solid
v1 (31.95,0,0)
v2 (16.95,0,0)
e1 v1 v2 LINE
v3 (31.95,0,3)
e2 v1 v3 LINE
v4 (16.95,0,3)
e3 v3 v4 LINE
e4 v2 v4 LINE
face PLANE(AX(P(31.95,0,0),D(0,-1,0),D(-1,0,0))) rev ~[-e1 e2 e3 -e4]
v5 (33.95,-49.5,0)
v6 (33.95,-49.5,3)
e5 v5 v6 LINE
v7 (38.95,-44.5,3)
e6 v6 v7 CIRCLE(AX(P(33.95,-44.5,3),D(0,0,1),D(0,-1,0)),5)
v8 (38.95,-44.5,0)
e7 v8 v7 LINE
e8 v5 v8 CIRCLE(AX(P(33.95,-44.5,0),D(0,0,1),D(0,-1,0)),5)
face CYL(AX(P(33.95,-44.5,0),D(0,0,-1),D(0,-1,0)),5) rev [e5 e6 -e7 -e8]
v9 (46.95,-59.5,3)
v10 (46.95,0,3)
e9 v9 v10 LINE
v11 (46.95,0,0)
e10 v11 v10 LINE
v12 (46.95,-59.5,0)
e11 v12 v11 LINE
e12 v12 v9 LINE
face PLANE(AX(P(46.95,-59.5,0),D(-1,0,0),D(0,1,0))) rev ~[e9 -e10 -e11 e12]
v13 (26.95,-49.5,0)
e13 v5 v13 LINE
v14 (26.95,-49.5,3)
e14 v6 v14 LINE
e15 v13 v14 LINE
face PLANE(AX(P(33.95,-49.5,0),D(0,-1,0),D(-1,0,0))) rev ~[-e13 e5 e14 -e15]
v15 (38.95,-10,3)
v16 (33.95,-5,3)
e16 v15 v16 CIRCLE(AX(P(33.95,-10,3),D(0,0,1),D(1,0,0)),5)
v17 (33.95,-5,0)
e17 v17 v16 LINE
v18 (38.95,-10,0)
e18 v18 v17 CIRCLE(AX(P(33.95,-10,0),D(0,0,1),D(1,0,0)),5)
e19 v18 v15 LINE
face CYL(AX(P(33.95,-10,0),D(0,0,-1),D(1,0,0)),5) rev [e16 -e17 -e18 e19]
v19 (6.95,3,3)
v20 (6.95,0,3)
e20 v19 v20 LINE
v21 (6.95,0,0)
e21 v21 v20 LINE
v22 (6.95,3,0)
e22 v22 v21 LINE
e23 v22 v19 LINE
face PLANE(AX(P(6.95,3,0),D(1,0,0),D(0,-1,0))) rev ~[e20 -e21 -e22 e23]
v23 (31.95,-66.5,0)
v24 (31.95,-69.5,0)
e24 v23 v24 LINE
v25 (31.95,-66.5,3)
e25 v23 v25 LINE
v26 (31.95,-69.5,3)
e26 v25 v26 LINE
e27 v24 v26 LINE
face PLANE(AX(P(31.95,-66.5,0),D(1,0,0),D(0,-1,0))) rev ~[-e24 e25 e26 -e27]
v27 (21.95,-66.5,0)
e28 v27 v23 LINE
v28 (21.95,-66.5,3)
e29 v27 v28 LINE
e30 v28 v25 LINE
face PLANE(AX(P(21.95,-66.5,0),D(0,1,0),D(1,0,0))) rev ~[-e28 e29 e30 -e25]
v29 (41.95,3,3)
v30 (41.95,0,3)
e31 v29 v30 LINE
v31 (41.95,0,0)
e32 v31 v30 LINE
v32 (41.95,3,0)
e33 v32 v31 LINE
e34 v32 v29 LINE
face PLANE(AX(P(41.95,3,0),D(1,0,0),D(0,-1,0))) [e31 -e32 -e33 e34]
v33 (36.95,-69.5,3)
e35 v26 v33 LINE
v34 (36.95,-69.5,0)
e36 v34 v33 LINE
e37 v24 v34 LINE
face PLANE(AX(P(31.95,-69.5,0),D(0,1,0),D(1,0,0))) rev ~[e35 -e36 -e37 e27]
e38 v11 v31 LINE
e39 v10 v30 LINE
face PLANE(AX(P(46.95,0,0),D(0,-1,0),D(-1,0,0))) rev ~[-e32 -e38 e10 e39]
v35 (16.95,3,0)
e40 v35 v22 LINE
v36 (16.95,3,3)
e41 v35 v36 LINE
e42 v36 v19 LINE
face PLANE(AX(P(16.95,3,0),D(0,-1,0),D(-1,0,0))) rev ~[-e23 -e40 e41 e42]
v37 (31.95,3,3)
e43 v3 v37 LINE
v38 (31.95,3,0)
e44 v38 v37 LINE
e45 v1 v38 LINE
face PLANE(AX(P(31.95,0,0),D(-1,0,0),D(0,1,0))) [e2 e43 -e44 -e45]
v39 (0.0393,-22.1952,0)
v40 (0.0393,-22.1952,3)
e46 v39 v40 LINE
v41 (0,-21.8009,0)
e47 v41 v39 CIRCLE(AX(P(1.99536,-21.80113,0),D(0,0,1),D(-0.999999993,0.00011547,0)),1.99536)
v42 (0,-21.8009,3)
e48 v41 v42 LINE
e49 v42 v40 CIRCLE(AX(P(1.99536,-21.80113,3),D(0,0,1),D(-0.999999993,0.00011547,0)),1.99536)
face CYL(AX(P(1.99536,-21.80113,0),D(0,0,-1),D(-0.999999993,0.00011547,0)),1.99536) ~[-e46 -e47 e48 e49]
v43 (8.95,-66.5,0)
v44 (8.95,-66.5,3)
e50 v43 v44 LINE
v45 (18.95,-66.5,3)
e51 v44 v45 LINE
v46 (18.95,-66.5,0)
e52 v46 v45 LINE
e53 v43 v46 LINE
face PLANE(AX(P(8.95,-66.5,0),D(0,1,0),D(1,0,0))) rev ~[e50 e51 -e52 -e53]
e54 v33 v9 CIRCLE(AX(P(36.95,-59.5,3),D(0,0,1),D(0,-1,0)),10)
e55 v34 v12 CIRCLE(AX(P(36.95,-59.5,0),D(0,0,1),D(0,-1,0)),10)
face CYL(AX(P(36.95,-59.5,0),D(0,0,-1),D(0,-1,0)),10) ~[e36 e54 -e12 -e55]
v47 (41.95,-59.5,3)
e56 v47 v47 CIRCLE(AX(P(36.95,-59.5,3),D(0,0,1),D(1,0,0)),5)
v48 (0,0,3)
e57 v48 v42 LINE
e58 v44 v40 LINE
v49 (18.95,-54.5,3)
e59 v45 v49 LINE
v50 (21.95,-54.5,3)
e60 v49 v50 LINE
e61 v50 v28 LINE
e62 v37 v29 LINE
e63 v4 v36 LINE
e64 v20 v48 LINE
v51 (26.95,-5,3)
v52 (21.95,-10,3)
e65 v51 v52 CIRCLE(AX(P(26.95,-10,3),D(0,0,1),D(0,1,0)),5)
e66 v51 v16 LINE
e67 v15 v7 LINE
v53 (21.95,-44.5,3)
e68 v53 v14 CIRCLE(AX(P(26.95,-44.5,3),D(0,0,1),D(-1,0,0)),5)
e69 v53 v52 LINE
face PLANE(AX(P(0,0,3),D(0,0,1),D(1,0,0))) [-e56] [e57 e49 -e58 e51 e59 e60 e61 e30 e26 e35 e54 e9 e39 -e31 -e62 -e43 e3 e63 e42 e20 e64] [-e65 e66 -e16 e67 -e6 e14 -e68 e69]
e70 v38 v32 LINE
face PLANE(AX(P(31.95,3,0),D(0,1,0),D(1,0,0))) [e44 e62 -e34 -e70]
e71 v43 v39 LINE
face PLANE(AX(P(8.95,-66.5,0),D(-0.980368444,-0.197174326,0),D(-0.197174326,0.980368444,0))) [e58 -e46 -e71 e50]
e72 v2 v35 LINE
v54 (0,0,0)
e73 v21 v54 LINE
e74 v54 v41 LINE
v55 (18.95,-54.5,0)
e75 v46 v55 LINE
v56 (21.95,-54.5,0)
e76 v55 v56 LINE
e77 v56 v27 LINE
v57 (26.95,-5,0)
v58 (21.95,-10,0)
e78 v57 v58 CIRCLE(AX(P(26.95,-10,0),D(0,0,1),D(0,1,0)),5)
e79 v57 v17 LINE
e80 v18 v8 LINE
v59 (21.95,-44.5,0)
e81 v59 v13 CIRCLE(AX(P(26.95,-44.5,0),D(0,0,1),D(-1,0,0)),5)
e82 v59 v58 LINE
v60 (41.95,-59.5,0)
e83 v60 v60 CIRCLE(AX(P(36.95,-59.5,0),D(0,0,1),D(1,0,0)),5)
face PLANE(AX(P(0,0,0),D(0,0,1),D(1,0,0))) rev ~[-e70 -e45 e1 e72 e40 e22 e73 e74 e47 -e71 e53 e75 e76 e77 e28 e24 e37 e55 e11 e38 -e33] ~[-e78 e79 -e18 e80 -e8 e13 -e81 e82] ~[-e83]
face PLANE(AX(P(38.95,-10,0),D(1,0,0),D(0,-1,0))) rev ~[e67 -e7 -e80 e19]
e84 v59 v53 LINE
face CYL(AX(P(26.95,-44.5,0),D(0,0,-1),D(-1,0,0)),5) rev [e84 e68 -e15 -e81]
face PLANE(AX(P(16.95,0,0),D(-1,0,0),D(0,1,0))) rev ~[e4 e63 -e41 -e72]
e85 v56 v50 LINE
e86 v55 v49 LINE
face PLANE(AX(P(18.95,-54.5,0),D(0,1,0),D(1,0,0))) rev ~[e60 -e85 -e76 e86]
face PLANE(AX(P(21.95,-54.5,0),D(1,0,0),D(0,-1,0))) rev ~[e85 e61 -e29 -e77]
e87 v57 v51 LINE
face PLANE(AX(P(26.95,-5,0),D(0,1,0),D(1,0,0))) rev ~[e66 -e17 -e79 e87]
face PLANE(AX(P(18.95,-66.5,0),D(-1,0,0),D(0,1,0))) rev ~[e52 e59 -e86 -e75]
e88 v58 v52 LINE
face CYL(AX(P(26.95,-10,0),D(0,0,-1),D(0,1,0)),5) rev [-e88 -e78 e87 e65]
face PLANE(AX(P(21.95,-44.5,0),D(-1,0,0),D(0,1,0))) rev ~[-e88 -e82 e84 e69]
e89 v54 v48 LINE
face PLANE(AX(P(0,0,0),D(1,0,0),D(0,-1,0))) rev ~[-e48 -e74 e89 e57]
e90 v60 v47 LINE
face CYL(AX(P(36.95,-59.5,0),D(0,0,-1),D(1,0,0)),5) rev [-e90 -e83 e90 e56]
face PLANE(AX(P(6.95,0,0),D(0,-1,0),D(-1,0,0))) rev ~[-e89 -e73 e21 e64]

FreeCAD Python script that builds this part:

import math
import FreeCAD as App
import Part
import Sketcher

V = App.Vector

doc = App.newDocument("Part")
body = doc.addObject("PartDesign::Body", "Body")

# Sketch on XY plane
sketch1 = body.newObject("Sketcher::SketchObject", "Sketch")
sketch1.AttachmentSupport = (doc.getObject("XY_Plane"), [""])
sketch1.MapMode = "FlatFace"
sketch1.addGeometry(Part.LineSegment(V(0.04, -22.2, 0), V(8.95, -66.5, 0)), False)
sketch1.addGeometry(Part.LineSegment(V(8.95, -66.5, 0), V(18.95, -66.5, 0)), False)
sketch1.addGeometry(Part.LineSegment(V(18.95, -66.5, 0), V(18.95, -54.5, 0)), False)
sketch1.addGeometry(Part.LineSegment(V(18.95, -54.5, 0), V(21.95, -54.5, 0)), False)
sketch1.addGeometry(Part.LineSegment(V(21.95, -54.5, 0), V(21.95, -66.5, 0)), False)
sketch1.addGeometry(Part.LineSegment(V(21.95, -66.5, 0), V(31.95, -66.5, 0)), False)
sketch1.addGeometry(Part.LineSegment(V(31.95, -66.5, 0), V(31.95, -69.5, 0)), False)
sketch1.addGeometry(Part.LineSegment(V(31.95, -69.5, 0), V(36.95, -69.5, 0)), False)
sketch1.addGeometry(Part.ArcOfCircle(Part.Circle(V(36.95, -59.5, 0), V(0, 0, 1), 10), math.radians(-90), math.radians(0)), False)
sketch1.addGeometry(Part.LineSegment(V(46.95, -59.5, 0), V(46.95, 0, 0)), False)
sketch1.addGeometry(Part.LineSegment(V(46.95, 0, 0), V(41.95, 0, 0)), False)
sketch1.addGeometry(Part.LineSegment(V(41.95, 0, 0), V(41.95, 3, 0)), False)
sketch1.addGeometry(Part.LineSegment(V(41.95, 3, 0), V(31.95, 3, 0)), False)
sketch1.addGeometry(Part.LineSegment(V(31.95, 3, 0), V(31.95, 0, 0)), False)
sketch1.addGeometry(Part.LineSegment(V(31.95, 0, 0), V(16.95, 0, 0)), False)
sketch1.addGeometry(Part.LineSegment(V(16.95, 0, 0), V(16.95, 3, 0)), False)
sketch1.addGeometry(Part.LineSegment(V(16.95, 3, 0), V(6.95, 3, 0)), False)
sketch1.addGeometry(Part.LineSegment(V(6.95, 3, 0), V(6.95, 0, 0)), False)
sketch1.addGeometry(Part.LineSegment(V(6.95, 0, 0), V(0, 0, 0)), False)
sketch1.addGeometry(Part.LineSegment(V(0, 0, 0), V(0, -21.8, 0)), False)
sketch1.addGeometry(Part.ArcOfCircle(Part.Circle(V(2, -21.8, 0), V(0, 0, 1), 2), math.radians(179.99), math.radians(191.39)), False)
sketch1.addGeometry(Part.Circle(V(36.95, -59.5, 0), V(0, 0, 1), 5), False)
sketch1.addGeometry(Part.ArcOfCircle(Part.Circle(V(26.95, -10, 0), V(0, 0, 1), 5), math.radians(90), math.radians(180)), False)
sketch1.addGeometry(Part.LineSegment(V(26.95, -5, 0), V(33.95, -5, 0)), False)
sketch1.addGeometry(Part.ArcOfCircle(Part.Circle(V(33.95, -10, 0), V(0, 0, 1), 5), math.radians(0), math.radians(90)), False)
sketch1.addGeometry(Part.LineSegment(V(38.95, -10, 0), V(38.95, -44.5, 0)), False)
sketch1.addGeometry(Part.ArcOfCircle(Part.Circle(V(33.95, -44.5, 0), V(0, 0, 1), 5), math.radians(-90), math.radians(0)), False)
sketch1.addGeometry(Part.LineSegment(V(33.95, -49.5, 0), V(26.95, -49.5, 0)), False)
sketch1.addGeometry(Part.ArcOfCircle(Part.Circle(V(26.95, -44.5, 0), V(0, 0, 1), 5), math.radians(180), math.radians(270)), False)
sketch1.addGeometry(Part.LineSegment(V(21.95, -44.5, 0), V(21.95, -10, 0)), False)
sketch1.addConstraint(Sketcher.Constraint("Coincident", 0, 2, 1, 1))
sketch1.addConstraint(Sketcher.Constraint("Coincident", 1, 2, 2, 1))
sketch1.addConstraint(Sketcher.Constraint("Coincident", 2, 2, 3, 1))
sketch1.addConstraint(Sketcher.Constraint("Coincident", 3, 2, 4, 1))
sketch1.addConstraint(Sketcher.Constraint("Coincident", 4, 2, 5, 1))
sketch1.addConstraint(Sketcher.Constraint("Coincident", 5, 2, 6, 1))
sketch1.addConstraint(Sketcher.Constraint("Coincident", 6, 2, 7, 1))
sketch1.addConstraint(Sketcher.Constraint("Tangent", 7, 2, 8, 1))
sketch1.addConstraint(Sketcher.Constraint("Tangent", 8, 2, 9, 1))
sketch1.addConstraint(Sketcher.Constraint("Coincident", 9, 2, 10, 1))
sketch1.addConstraint(Sketcher.Constraint("Coincident", 10, 2, 11, 1))
sketch1.addConstraint(Sketcher.Constraint("Coincident", 11, 2, 12, 1))
sketch1.addConstraint(Sketcher.Constraint("Coincident", 12, 2, 13, 1))
sketch1.addConstraint(Sketcher.Constraint("Coincident", 13, 2, 14, 1))
sketch1.addConstraint(Sketcher.Constraint("Coincident", 14, 2, 15, 1))
sketch1.addConstraint(Sketcher.Constraint("Coincident", 15, 2, 16, 1))
sketch1.addConstraint(Sketcher.Constraint("Coincident", 16, 2, 17, 1))
sketch1.addConstraint(Sketcher.Constraint("Coincident", 17, 2, 18, 1))
sketch1.addConstraint(Sketcher.Constraint("Coincident", 18, 2, 19, 1))
sketch1.addConstraint(Sketcher.Constraint("Tangent", 19, 2, 20, 1))
sketch1.addConstraint(Sketcher.Constraint("Tangent", 20, 2, 0, 1))
sketch1.addConstraint(Sketcher.Constraint("Tangent", 22, 1, 23, 1))
sketch1.addConstraint(Sketcher.Constraint("Tangent", 23, 2, 24, 2))
sketch1.addConstraint(Sketcher.Constraint("Tangent", 24, 1, 25, 1))
sketch1.addConstraint(Sketcher.Constraint("Tangent", 25, 2, 26, 2))
sketch1.addConstraint(Sketcher.Constraint("Tangent", 26, 1, 27, 1))
sketch1.addConstraint(Sketcher.Constraint("Tangent", 27, 2, 28, 2))
sketch1.addConstraint(Sketcher.Constraint("Tangent", 28, 1, 29, 1))
sketch1.addConstraint(Sketcher.Constraint("Tangent", 29, 2, 22, 2))
sketch1.addConstraint(Sketcher.Constraint("Horizontal", 1))
sketch1.addConstraint(Sketcher.Constraint("Vertical", 2))
sketch1.addConstraint(Sketcher.Constraint("Horizontal", 3))
sketch1.addConstraint(Sketcher.Constraint("Vertical", 4))
sketch1.addConstraint(Sketcher.Constraint("Horizontal", 5))
sketch1.addConstraint(Sketcher.Constraint("Vertical", 6))
sketch1.addConstraint(Sketcher.Constraint("Horizontal", 7))
sketch1.addConstraint(Sketcher.Constraint("Vertical", 9))
sketch1.addConstraint(Sketcher.Constraint("Horizontal", 10))
sketch1.addConstraint(Sketcher.Constraint("Vertical", 11))
sketch1.addConstraint(Sketcher.Constraint("Horizontal", 12))
sketch1.addConstraint(Sketcher.Constraint("Vertical", 13))
sketch1.addConstraint(Sketcher.Constraint("Horizontal", 14))
sketch1.addConstraint(Sketcher.Constraint("Vertical", 15))
sketch1.addConstraint(Sketcher.Constraint("Horizontal", 16))
sketch1.addConstraint(Sketcher.Constraint("Vertical", 17))
sketch1.addConstraint(Sketcher.Constraint("Horizontal", 18))
sketch1.addConstraint(Sketcher.Constraint("Vertical", 19))
sketch1.addConstraint(Sketcher.Constraint("Horizontal", 23))
sketch1.addConstraint(Sketcher.Constraint("Vertical", 25))
sketch1.addConstraint(Sketcher.Constraint("Horizontal", 27))
sketch1.addConstraint(Sketcher.Constraint("Vertical", 29))
sketch1.addConstraint(Sketcher.Constraint("Coincident", 18, 2, -1, 1))
sketch1.addConstraint(Sketcher.Constraint("Coincident", 21, 3, 8, 3))
sketch1.addConstraint(Sketcher.Constraint("Equal", 21, 22))
sketch1.addConstraint(Sketcher.Constraint("Equal", 22, 24))
sketch1.addConstraint(Sketcher.Constraint("Equal", 24, 26))
sketch1.addConstraint(Sketcher.Constraint("Equal", 26, 28))
sketch1.addConstraint(Sketcher.Constraint("PointOnObject", 9, 2, -1))
sketch1.addConstraint(Sketcher.Constraint("PointOnObject", 13, 2, -1))
sketch1.addConstraint(Sketcher.Constraint("Horizontal", 1, 2, 4, 2))
sketch1.addConstraint(Sketcher.Constraint("Horizontal", 12, 2, 15, 2))
sketch1.addConstraint(Sketcher.Constraint("Vertical", 6, 2, 12, 2))
sketch1.addConstraint(Sketcher.Constraint("Vertical", 4, 2, 28, 1))
sketch1.addConstraint(Sketcher.Constraint("Equal", 1, 5))
sketch1.addConstraint(Sketcher.Constraint("Equal", 7, 10))
sketch1.addConstraint(Sketcher.Constraint("Equal", 5, 12))
sketch1.addConstraint(Sketcher.Constraint("Equal", 12, 16))
sketch1.addConstraint(Sketcher.Constraint("Equal", 3, 6))
sketch1.addConstraint(Sketcher.Constraint("Equal", 6, 11))
sketch1.addConstraint(Sketcher.Constraint("Diameter", 21, 10.0))
sketch1.addConstraint(Sketcher.Constraint("Radius", 8, 10.0))
sketch1.addConstraint(Sketcher.Constraint("DistanceX", 3, 1, 3, 2, 3.0))
sketch1.addConstraint(Sketcher.Constraint("DistanceX", 7, 1, 7, 2, 5.0))
sketch1.addConstraint(Sketcher.Constraint("DistanceX", 14, 2, 14, 1, 15.0))
sketch1.addConstraint(Sketcher.Constraint("DistanceY", 2, 1, 2, 2, 12.0))
sketch1.addConstraint(Sketcher.Constraint("DistanceY", 22, 3, -1, 1, 10.0))
sketch1.addConstraint(Sketcher.Constraint("DistanceX", 24, 3, 8, 3, 3.0))
sketch1.addConstraint(Sketcher.Constraint("DistanceY", 8, 3, 26, 3, 15.0))
sketch1.addConstraint(Sketcher.Constraint("DistanceX", 18, 2, 18, 1, 6.95))
sketch1.addConstraint(Sketcher.Constraint("DistanceY", 0, 2, -1, 1, 66.5))
sketch1.addConstraint(Sketcher.Constraint("Radius", 20, 1.9954))
sketch1.addConstraint(Sketcher.Constraint("DistanceY", 19, 2, 19, 1, 21.801))
pad1 = body.newObject("PartDesign::Pad", "Pad")
pad1.Profile = sketch1
pad1.Length = 3

doc.recompute()
